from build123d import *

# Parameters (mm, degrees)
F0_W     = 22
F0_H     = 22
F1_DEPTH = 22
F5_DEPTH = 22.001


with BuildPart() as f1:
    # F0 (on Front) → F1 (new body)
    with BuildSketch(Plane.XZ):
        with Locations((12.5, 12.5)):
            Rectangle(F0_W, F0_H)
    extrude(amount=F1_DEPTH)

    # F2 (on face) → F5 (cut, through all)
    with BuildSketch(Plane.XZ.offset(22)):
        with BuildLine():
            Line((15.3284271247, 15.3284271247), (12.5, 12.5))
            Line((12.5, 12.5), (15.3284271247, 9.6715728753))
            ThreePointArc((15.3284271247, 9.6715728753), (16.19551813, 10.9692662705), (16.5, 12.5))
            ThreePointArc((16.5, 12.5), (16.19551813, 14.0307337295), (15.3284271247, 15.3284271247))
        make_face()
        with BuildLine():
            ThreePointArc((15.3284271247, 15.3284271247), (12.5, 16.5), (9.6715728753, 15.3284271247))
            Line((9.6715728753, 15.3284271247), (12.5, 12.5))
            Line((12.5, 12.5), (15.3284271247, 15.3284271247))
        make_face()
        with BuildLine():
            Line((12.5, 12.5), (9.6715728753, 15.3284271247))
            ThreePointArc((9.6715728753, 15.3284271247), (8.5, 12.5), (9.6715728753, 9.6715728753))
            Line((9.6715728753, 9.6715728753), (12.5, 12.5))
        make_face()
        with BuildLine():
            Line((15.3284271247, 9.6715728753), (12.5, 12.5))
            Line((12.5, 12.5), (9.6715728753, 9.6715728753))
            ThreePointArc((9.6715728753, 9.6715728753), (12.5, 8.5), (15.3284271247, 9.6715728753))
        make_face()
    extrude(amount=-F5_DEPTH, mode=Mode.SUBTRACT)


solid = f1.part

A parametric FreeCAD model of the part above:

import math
import FreeCAD as App
import Part
import Sketcher

V = App.Vector
Q = App.Units.Quantity


def add_polygon(sketch, points):
    """Adds a closed chain of lines whose ends are joined by coincident constraints."""
    first, n = sketch.GeometryCount, len(points)
    for a, b in zip(points, points[1:] + points[:1]):
        sketch.addGeometry(Part.LineSegment(App.Vector(*a, 0), App.Vector(*b, 0)), False)
    for i in range(n):
        sketch.addConstraint(Sketcher.Constraint("Coincident", first + i, 2, first + (i + 1) % n, 1))

doc = App.newDocument("Part")
body = doc.addObject("PartDesign::Body", "Body")

sketch1 = body.newObject("Sketcher::SketchObject", "Sketch")
sketch1.AttachmentSupport = (doc.getObject("XZ_Plane"), [""])
sketch1.MapMode = "FlatFace"
add_polygon(sketch1, [(1.5, 23.5), (1.5, 1.5), (23.5, 1.5), (23.5, 23.5)])
sketch1.addConstraint([
    Sketcher.Constraint("Vertical", 0),
    Sketcher.Constraint("Horizontal", 1),
    Sketcher.Constraint("Vertical", 2),
    Sketcher.Constraint("Horizontal", 3),
    Sketcher.Constraint("Equal", 3, 0),
    Sketcher.Constraint("DistanceX", 1, 1, 1, 2, Q("22 mm")),
    Sketcher.Constraint("DistanceX", -1, 1, 0, 2, Q("1.5 mm")),
    Sketcher.Constraint("DistanceY", -1, 1, 0, 2, Q("1.5 mm")),
])
pad1 = body.newObject("PartDesign::Pad", "Pad")
pad1.Profile = sketch1
pad1.Length = 22

sketch2 = body.newObject("Sketcher::SketchObject", "Sketch001")
sketch2.AttachmentSupport = (doc.getObject("XZ_Plane"), [""])
sketch2.MapMode = "FlatFace"
sketch2.AttachmentOffset = App.Placement(V(0, 0, 22), App.Rotation())
sketch2.addGeometry([
    Part.ArcOfCircle(Part.Circle(V(12.5, 12.5, 0), V(0, 0, 1), 4), math.radians(-45), math.radians(0)),
    Part.ArcOfCircle(Part.Circle(V(12.5, 12.5, 0), V(0, 0, 1), 4), math.radians(0), math.radians(45)),
    Part.ArcOfCircle(Part.Circle(V(12.5, 12.5, 0), V(0, 0, 1), 4), math.radians(45), math.radians(135)),
    Part.ArcOfCircle(Part.Circle(V(12.5, 12.5, 0), V(0, 0, 1), 4), math.radians(135), math.radians(225)),
    Part.ArcOfCircle(Part.Circle(V(12.5, 12.5, 0), V(0, 0, 1), 4), math.radians(-135), math.radians(-45)),
], False)
sketch2.addConstraint([
    Sketcher.Constraint("Tangent", 0, 2, 1, 1),
    Sketcher.Constraint("Tangent", 1, 2, 2, 1),
    Sketcher.Constraint("Tangent", 2, 2, 3, 1),
    Sketcher.Constraint("Tangent", 3, 2, 4, 1),
    Sketcher.Constraint("Tangent", 4, 2, 0, 1),
    Sketcher.Constraint("Coincident", 2, 3, 0, 3),
    Sketcher.Constraint("Horizontal", 4, 3, 0, 2),
    Sketcher.Constraint("Horizontal", 1, 2, 2, 2),
    Sketcher.Constraint("Horizontal", 3, 2, 4, 2),
    Sketcher.Constraint("Vertical", 2, 2, 3, 2),
    Sketcher.Constraint("Radius", 0, Q("4 mm")),
    Sketcher.Constraint("DistanceX", -1, 1, 0, 3, Q("12.5 mm")),
    Sketcher.Constraint("DistanceY", -1, 1, 0, 3, Q("12.5 mm")),
    Sketcher.Constraint("DistanceX", -1, 1, 1, 2, Q("15.328427 mm")),
])
pocket1 = body.newObject("PartDesign::Pocket", "Pocket")
pocket1.Profile = sketch2
pocket1.Type = "ThroughAll"

doc.recompute()
